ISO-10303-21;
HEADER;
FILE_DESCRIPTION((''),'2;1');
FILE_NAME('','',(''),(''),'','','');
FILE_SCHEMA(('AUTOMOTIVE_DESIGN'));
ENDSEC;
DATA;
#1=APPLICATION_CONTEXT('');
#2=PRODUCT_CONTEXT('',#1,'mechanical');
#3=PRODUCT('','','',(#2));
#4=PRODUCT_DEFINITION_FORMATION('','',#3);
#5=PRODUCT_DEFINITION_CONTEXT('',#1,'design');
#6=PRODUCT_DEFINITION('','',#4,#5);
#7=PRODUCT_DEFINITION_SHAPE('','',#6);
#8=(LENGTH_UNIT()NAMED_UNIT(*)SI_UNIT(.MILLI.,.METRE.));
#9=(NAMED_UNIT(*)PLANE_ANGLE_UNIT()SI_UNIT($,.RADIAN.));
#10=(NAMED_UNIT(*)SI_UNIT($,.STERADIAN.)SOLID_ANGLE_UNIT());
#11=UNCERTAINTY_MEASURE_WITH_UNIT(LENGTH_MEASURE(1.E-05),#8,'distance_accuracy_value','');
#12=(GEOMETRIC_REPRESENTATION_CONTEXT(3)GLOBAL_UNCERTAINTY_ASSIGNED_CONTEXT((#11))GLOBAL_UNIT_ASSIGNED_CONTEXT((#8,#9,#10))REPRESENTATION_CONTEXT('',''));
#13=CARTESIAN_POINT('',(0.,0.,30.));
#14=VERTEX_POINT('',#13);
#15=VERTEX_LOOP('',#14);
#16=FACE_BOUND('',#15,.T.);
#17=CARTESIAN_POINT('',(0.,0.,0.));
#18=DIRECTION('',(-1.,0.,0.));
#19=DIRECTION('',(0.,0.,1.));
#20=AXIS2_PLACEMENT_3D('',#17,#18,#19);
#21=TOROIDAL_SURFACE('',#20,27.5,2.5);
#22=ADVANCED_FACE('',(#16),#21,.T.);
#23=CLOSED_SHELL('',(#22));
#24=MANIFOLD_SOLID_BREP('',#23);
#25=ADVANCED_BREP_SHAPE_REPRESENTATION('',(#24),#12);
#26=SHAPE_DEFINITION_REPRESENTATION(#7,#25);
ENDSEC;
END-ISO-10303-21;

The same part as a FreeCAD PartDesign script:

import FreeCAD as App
import Part
import Sketcher
Q = App.Units.Quantity

doc = App.newDocument("Part")
body = doc.addObject("PartDesign::Body", "Body")

sketch1 = body.newObject("Sketcher::SketchObject", "Sketch")
sketch1.AttachmentSupport = (doc.getObject("XY_Plane"), [""])
sketch1.MapMode = "FlatFace"
sketch1.addGeometry(Part.Circle(App.Vector(0, 27.5, 0), App.Vector(0, 0, 1), 2.5), False)
sketch1.addConstraint(Sketcher.Constraint("PointOnObject", 0, 3, -2))
sketch1.addConstraint(Sketcher.Constraint("Diameter", 0, Q("5 mm")))
sketch1.addConstraint(Sketcher.Constraint("DistanceY", -1, 1, 0, 3, Q("27.5 mm")))
revolution = body.newObject("PartDesign::Revolution", "Revolution")
revolution.Profile = sketch1
revolution.ReferenceAxis = (sketch1, ["H_Axis"])
revolution.Angle = 360

doc.recompute()
